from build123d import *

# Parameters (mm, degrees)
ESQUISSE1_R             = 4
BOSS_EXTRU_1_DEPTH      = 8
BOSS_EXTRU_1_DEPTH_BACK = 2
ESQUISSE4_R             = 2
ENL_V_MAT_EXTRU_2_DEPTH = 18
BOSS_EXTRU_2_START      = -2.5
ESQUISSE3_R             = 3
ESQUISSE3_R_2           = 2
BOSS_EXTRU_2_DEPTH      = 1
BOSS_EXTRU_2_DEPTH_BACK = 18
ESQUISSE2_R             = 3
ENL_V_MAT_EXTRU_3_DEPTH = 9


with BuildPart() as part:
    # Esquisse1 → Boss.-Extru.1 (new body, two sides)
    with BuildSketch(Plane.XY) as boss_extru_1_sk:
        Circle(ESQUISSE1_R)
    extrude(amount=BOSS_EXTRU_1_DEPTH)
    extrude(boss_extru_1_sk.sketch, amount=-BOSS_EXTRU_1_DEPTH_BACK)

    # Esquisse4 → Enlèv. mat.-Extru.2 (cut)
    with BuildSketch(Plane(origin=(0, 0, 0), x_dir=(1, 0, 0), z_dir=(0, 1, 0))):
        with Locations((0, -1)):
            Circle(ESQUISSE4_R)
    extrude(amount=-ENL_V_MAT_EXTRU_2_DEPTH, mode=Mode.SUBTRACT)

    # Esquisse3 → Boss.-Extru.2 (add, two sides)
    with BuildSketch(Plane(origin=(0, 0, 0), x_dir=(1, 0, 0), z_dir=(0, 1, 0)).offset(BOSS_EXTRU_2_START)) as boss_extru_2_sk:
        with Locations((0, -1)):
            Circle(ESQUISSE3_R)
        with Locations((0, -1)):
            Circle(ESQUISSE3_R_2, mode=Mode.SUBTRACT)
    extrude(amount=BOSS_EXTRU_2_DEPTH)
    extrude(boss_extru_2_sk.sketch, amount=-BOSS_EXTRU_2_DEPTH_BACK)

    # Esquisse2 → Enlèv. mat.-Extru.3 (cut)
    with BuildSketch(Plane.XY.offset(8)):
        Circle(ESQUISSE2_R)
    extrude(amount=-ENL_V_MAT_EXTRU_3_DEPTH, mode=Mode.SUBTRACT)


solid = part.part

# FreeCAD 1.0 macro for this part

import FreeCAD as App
import Part
import Sketcher
from FreeCAD import Vector
Q = App.Units.Quantity

doc = App.newDocument("Part")
params = doc.addObject("Spreadsheet::Sheet", "Params")
for row, (alias, value) in enumerate([
    ("sketch1_diameter", "8 mm"),
    ("pad1_length", "8 mm"),
    ("pad1_length2", "2 mm"),
    ("sketch2_diameter", "4 mm"),
    ("pocket1_length", "18 mm"),
    ("sketch3_diameter", "6 mm"),
    ("sketch3_diameter2", "4 mm"),
    ("pad2_length", "1 mm"),
    ("pad2_length2", "18 mm"),
    ("sketch4_diameter", "6 mm"),
    ("pocket2_length", "9 mm"),
], start=1):
    params.set(f"A{row}", alias)
    params.set(f"B{row}", "=" + value)
    params.setAlias(f"B{row}", alias)

body = doc.addObject("PartDesign::Body", "Body")

# Sketch on XY plane
sketch1 = doc.addObject("Sketcher::SketchObject", "Sketch")
body.addObject(sketch1)
sketch1.AttachmentSupport = (doc.XY_Plane, [""])
sketch1.MapMode = "FlatFace"
sketch1.addGeometry(Part.Circle(Vector(0, 0, 0), Vector(0, 0, 1), 4), False)
sketch1.addConstraint([
    Sketcher.Constraint("Coincident", 0, 3, -1, 1),
    Sketcher.Constraint("Diameter", 0, Q("8 mm")),
])
sketch1.setExpression("Constraints[1]", "Params.sketch1_diameter")
pad1 = doc.addObject("PartDesign::Pad", "Pad")
body.addObject(pad1)
pad1.Profile = sketch1
pad1.Type = "TwoLengths"
pad1.setExpression("Length", "Params.pad1_length")
pad1.setExpression("Length2", "Params.pad1_length2")

# Sketch on XZ plane
sketch2 = doc.addObject("Sketcher::SketchObject", "Sketch001")
body.addObject(sketch2)
sketch2.AttachmentSupport = (doc.XZ_Plane, [""])
sketch2.MapMode = "FlatFace"
sketch2.addGeometry(Part.Circle(Vector(0, 1, 0), Vector(0, 0, 1), 2), False)
sketch2.addConstraint([
    Sketcher.Constraint("PointOnObject", 0, 3, -2),
    Sketcher.Constraint("Diameter", 0, Q("4 mm")),
    Sketcher.Constraint("DistanceY", -1, 1, 0, 3, Q("1 mm")),
])
sketch2.setExpression("Constraints[1]", "Params.sketch2_diameter")
pocket1 = doc.addObject("PartDesign::Pocket", "Pocket")
body.addObject(pocket1)
pocket1.Profile = sketch2
pocket1.setExpression("Length", "Params.pocket1_length")
pocket1.Reversed = True

# Sketch on XZ plane
sketch3 = doc.addObject("Sketcher::SketchObject", "Sketch002")
body.addObject(sketch3)
sketch3.AttachmentSupport = (doc.XZ_Plane, [""])
sketch3.MapMode = "FlatFace"
sketch3.AttachmentOffset = App.Placement(Vector(0, 0, 2.5), App.Rotation())
sketch3.addGeometry([
    Part.Circle(Vector(0, 1, 0), Vector(0, 0, 1), 3),
    Part.Circle(Vector(0, 1, 0), Vector(0, 0, 1), 2),
], False)
sketch3.addConstraint([
    Sketcher.Constraint("Coincident", 1, 3, 0, 3),
    Sketcher.Constraint("PointOnObject", 0, 3, -2),
    Sketcher.Constraint("Diameter", 0, Q("6 mm")),
    Sketcher.Constraint("Diameter", 1, Q("4 mm")),
    Sketcher.Constraint("DistanceY", -1, 1, 0, 3, Q("1 mm")),
])
sketch3.setExpression("Constraints[2]", "Params.sketch3_diameter")
sketch3.setExpression("Constraints[3]", "Params.sketch3_diameter2")
pad2 = doc.addObject("PartDesign::Pad", "Pad001")
body.addObject(pad2)
pad2.Profile = sketch3
pad2.Type = "TwoLengths"
pad2.setExpression("Length", "Params.pad2_length")
pad2.setExpression("Length2", "Params.pad2_length2")
pad2.Reversed = True

# Sketch on XY plane
sketch4 = doc.addObject("Sketcher::SketchObject", "Sketch003")
body.addObject(sketch4)
sketch4.AttachmentSupport = (doc.XY_Plane, [""])
sketch4.MapMode = "FlatFace"
sketch4.AttachmentOffset = App.Placement(Vector(0, 0, 8), App.Rotation())
sketch4.addGeometry(Part.Circle(Vector(0, 0, 0), Vector(0, 0, 1), 3), False)
sketch4.addConstraint([
    Sketcher.Constraint("Coincident", 0, 3, -1, 1),
    Sketcher.Constraint("Diameter", 0, Q("6 mm")),
])
sketch4.setExpression("Constraints[1]", "Params.sketch4_diameter")
pocket2 = doc.addObject("PartDesign::Pocket", "Pocket001")
body.addObject(pocket2)
pocket2.Profile = sketch4
pocket2.setExpression("Length", "Params.pocket2_length")

doc.recompute()
